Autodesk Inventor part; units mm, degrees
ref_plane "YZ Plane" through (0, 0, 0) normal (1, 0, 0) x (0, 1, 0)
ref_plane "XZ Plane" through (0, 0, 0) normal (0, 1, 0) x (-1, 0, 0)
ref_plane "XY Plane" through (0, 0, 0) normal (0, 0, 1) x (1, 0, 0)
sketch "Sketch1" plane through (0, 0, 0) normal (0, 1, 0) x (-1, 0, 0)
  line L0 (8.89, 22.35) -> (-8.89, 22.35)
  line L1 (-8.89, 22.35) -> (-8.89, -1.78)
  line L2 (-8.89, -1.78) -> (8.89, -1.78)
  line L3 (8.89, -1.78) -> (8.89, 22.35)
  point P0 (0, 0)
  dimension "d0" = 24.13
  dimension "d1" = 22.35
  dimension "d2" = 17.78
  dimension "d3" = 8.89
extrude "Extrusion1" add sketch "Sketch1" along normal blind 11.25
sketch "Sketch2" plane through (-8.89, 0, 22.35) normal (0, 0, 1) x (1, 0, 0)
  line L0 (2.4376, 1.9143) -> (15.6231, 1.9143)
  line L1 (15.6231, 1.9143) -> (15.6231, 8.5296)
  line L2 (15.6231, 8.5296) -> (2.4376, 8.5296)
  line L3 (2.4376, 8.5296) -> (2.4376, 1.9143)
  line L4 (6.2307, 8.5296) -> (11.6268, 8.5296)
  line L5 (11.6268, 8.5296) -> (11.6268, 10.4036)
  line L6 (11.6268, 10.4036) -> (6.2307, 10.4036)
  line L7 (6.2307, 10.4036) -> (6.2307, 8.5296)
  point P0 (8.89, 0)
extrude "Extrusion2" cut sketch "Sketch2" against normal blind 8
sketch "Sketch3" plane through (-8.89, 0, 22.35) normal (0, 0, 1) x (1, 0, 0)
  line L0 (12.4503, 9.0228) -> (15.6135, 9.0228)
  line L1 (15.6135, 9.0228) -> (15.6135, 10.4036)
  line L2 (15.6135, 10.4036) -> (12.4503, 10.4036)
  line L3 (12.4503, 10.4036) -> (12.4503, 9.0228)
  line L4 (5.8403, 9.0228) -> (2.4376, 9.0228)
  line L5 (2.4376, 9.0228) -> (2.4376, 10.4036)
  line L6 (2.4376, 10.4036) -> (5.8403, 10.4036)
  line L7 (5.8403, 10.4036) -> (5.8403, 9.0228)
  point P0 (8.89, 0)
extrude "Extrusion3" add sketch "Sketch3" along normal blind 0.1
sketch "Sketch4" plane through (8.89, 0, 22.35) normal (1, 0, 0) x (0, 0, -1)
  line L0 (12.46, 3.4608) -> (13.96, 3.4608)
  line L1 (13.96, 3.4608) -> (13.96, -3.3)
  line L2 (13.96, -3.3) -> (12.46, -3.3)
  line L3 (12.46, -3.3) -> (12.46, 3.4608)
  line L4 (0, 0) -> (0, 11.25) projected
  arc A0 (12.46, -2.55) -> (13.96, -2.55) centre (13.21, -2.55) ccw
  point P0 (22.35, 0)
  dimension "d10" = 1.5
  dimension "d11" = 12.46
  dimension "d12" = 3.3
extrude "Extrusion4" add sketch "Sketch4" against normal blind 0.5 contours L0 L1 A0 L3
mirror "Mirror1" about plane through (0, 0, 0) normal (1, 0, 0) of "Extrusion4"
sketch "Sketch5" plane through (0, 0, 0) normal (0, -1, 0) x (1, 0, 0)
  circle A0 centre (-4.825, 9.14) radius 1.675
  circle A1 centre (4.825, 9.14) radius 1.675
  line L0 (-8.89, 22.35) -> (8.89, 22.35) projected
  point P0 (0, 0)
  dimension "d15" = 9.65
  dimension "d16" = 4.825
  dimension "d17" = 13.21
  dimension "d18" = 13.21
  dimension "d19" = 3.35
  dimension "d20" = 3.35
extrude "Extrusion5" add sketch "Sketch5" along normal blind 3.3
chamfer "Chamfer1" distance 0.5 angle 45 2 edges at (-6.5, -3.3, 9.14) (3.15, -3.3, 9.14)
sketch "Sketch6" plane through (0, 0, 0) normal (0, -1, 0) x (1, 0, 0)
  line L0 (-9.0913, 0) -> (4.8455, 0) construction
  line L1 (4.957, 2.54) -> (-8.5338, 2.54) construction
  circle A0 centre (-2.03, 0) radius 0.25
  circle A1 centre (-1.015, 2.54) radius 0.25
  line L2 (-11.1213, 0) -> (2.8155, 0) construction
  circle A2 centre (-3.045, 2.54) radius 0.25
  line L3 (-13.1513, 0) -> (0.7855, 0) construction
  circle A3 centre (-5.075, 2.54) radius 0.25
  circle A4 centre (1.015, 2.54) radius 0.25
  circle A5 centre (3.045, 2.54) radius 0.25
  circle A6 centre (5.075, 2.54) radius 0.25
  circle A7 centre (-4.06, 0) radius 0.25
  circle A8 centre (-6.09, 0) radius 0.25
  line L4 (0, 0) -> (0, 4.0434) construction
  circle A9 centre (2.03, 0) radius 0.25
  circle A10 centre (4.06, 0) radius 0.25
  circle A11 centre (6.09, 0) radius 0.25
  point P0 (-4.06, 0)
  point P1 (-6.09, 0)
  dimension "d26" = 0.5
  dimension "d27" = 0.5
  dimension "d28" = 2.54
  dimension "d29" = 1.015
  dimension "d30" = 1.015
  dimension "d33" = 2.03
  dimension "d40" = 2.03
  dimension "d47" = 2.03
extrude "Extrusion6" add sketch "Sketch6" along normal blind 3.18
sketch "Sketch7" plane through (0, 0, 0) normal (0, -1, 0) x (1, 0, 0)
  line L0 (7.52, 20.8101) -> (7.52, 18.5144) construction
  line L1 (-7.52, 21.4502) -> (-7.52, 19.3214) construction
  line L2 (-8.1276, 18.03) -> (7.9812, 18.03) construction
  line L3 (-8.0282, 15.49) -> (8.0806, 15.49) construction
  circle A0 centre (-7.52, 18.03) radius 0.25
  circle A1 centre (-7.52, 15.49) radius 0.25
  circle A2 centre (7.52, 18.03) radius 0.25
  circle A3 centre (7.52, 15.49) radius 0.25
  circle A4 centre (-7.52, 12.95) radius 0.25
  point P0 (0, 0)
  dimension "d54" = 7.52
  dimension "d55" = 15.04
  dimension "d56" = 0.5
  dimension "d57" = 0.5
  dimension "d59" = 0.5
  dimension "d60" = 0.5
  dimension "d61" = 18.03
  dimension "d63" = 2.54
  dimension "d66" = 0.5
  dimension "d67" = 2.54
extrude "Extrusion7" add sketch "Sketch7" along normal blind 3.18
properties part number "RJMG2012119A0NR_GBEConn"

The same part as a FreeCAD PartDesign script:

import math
import FreeCAD as App
import Part
import Sketcher


def edges_at(feature, points):
    """Names of the edges that pass closest to the given points."""
    edges = feature.Shape.Edges
    near = lambda p: min(range(len(edges)), key=lambda i: edges[i].distToShape(Part.Vertex(*p))[0])
    return sorted({f"Edge{near(p) + 1}" for p in points})


def add_polygon(sketch, points):
    """Adds a closed chain of lines whose ends are joined by coincident constraints."""
    first, n = sketch.GeometryCount, len(points)
    for a, b in zip(points, points[1:] + points[:1]):
        sketch.addGeometry(Part.LineSegment(App.Vector(*a, 0), App.Vector(*b, 0)), False)
    for i in range(n):
        sketch.addConstraint(Sketcher.Constraint("Coincident", first + i, 2, first + (i + 1) % n, 1))

doc = App.newDocument("Part")
body = doc.addObject("PartDesign::Body", "Body")

sketch1 = body.newObject("Sketcher::SketchObject", "Sketch")
sketch1.AttachmentSupport = (doc.getObject("XZ_Plane"), [""])
sketch1.MapMode = "FlatFace"
add_polygon(sketch1, [(-9, -2), (-9, 22), (9, 22), (9, -2)])
sketch1.addConstraint([
    Sketcher.Constraint("Vertical", 0),
    Sketcher.Constraint("Horizontal", 1),
    Sketcher.Constraint("Vertical", 2),
    Sketcher.Constraint("Horizontal", 3),
    Sketcher.Constraint("DistanceX", 1, 1, 1, 2, 17.78),
    Sketcher.Constraint("DistanceY", 0, 1, 0, 2, 24.13),
    Sketcher.Constraint("DistanceX", 0, 2, -1, 1, 8.89),
    Sketcher.Constraint("DistanceY", -1, 1, 0, 2, 22.35),
])
pad1 = body.newObject("PartDesign::Pad", "Pad")
pad1.Profile = sketch1
pad1.Length = 11.25
pad1.Reversed = True

sketch2 = body.newObject("Sketcher::SketchObject", "Sketch001")
sketch2.AttachmentSupport = (doc.getObject("XY_Plane"), [""])
sketch2.MapMode = "FlatFace"
sketch2.AttachmentOffset = App.Placement(App.Vector(0, 0, 22.35), App.Rotation())
add_polygon(sketch2, [(-6.5, 8.5), (-6.5, 1.9), (6.7, 1.9), (6.7, 8.5), (2.7, 8.5), (2.7, 10.4), (-2.7, 10.4), (-2.7, 8.5)])
sketch2.addConstraint([
    Sketcher.Constraint("Vertical", 0),
    Sketcher.Constraint("Horizontal", 1),
    Sketcher.Constraint("Vertical", 2),
    Sketcher.Constraint("Horizontal", 3),
    Sketcher.Constraint("Vertical", 4),
    Sketcher.Constraint("Horizontal", 5),
    Sketcher.Constraint("Vertical", 6),
    Sketcher.Constraint("Horizontal", 7),
    Sketcher.Constraint("Horizontal", 3, 2, 6, 2),
    Sketcher.Constraint("DistanceX", 5, 2, 5, 1, 5.396),
    Sketcher.Constraint("DistanceX", 7, 2, 7, 1, 3.793),
    Sketcher.Constraint("DistanceY", 4, 1, 4, 2, 1.874),
    Sketcher.Constraint("DistanceX", 1, 1, 1, 2, 13.1855),
    Sketcher.Constraint("DistanceY", 0, 2, 0, 1, 6.6153),
    Sketcher.Constraint("DistanceX", -1, 1, 1, 2, 6.733),
    Sketcher.Constraint("DistanceY", -1, 1, 0, 2, 1.9143),
])
pocket1 = body.newObject("PartDesign::Pocket", "Pocket")
pocket1.Profile = sketch2
pocket1.Length = 8

sketch3 = body.newObject("Sketcher::SketchObject", "Sketch002")
sketch3.AttachmentSupport = (doc.getObject("XY_Plane"), [""])
sketch3.MapMode = "FlatFace"
sketch3.AttachmentOffset = App.Placement(App.Vector(0, 0, 22.35), App.Rotation())
add_polygon(sketch3, [(3.6, 10.4), (3.6, 9), (6.7, 9), (6.7, 10.4)])
add_polygon(sketch3, [(-6.5, 9), (-3, 9), (-3, 10.4), (-6.5, 10.4)])
sketch3.addConstraint([
    Sketcher.Constraint("Vertical", 0),
    Sketcher.Constraint("Horizontal", 1),
    Sketcher.Constraint("Vertical", 2),
    Sketcher.Constraint("Horizontal", 3),
    Sketcher.Constraint("Horizontal", 4),
    Sketcher.Constraint("Vertical", 5),
    Sketcher.Constraint("Horizontal", 6),
    Sketcher.Constraint("Vertical", 7),
    Sketcher.Constraint("Horizontal", 1, 2, 4, 2),
    Sketcher.Constraint("Horizontal", 3, 2, 5, 2),
    Sketcher.Constraint("DistanceX", 4, 2, 0, 2, 6.61),
    Sketcher.Constraint("DistanceX", 1, 1, 1, 2, 3.1632),
    Sketcher.Constraint("DistanceX", 4, 1, 4, 2, 3.4027),
    Sketcher.Constraint("DistanceY", 0, 2, 0, 1, 1.3808),
    Sketcher.Constraint("DistanceX", -1, 1, 0, 2, 3.5603),
    Sketcher.Constraint("DistanceY", -1, 1, 0, 2, 9.0228),
])
pad2 = body.newObject("PartDesign::Pad", "Pad001")
pad2.Profile = sketch3
pad2.Length = 0.1

sketch4 = body.newObject("Sketcher::SketchObject", "Sketch003")
sketch4.AttachmentSupport = (doc.getObject("YZ_Plane"), [""])
sketch4.MapMode = "FlatFace"
sketch4.AttachmentOffset = App.Placement(App.Vector(0, 0, 8.89), App.Rotation())
sketch4.addGeometry([
    Part.LineSegment(App.Vector(3.5, 8.4, 0), App.Vector(3.5, 9.9, 0)),
    Part.LineSegment(App.Vector(3.5, 9.9, 0), App.Vector(-2.5, 9.9, 0)),
    Part.ArcOfCircle(Part.Circle(App.Vector(-2.5, 9.1, 0), App.Vector(0, 0, 1), 0.8), math.radians(90), math.radians(270)),
    Part.LineSegment(App.Vector(-2.5, 8.4, 0), App.Vector(3.5, 8.4, 0)),
], False)
sketch4.addConstraint([
    Sketcher.Constraint("Coincident", 0, 2, 1, 1),
    Sketcher.Constraint("Tangent", 1, 2, 2, 1),
    Sketcher.Constraint("Tangent", 2, 2, 3, 1),
    Sketcher.Constraint("Coincident", 3, 2, 0, 1),
    Sketcher.Constraint("Vertical", 0),
    Sketcher.Constraint("Horizontal", 1),
    Sketcher.Constraint("Horizontal", 3),
    Sketcher.Constraint("Radius", 2, 0.75),
    Sketcher.Constraint("DistanceX", 2, 3, -1, 1, 2.55),
    Sketcher.Constraint("DistanceY", -1, 1, 2, 3, 9.14),
    Sketcher.Constraint("DistanceX", 1, 2, 1, 1, 6.0108),
])
pad3 = body.newObject("PartDesign::Pad", "Pad002")
pad3.Profile = sketch4
pad3.Length = 0.5
pad3.Reversed = True
doc.recompute()

mirrored = body.newObject("PartDesign::Mirrored", "Mirrored")
mirrored.Originals = [pad3]
mirrored.MirrorPlane = (doc.getObject("YZ_Plane"), [""])
body.Tip = mirrored

sketch5 = body.newObject("Sketcher::SketchObject", "Sketch004")
sketch5.AttachmentSupport = (doc.getObject("XZ_Plane"), [""])
sketch5.MapMode = "FlatFace"
sketch5.addGeometry([
    Part.Circle(App.Vector(-4.8, 9.1, 0), App.Vector(0, 0, 1), 1.7),
    Part.Circle(App.Vector(4.8, 9.1, 0), App.Vector(0, 0, 1), 1.7),
], False)
sketch5.addConstraint([
    Sketcher.Constraint("Equal", 0, 1),
    Sketcher.Constraint("Symmetric", 0, 3, 1, 3, -2),
    Sketcher.Constraint("Diameter", 0, 3.35),
    Sketcher.Constraint("DistanceX", 0, 3, 1, 3, 9.65),
    Sketcher.Constraint("DistanceY", -1, 1, 0, 3, 9.14),
])
pad4 = body.newObject("PartDesign::Pad", "Pad003")
pad4.Profile = sketch5
pad4.Length = 3.3
doc.recompute()

chamfer = body.newObject("PartDesign::Chamfer", "Chamfer")
chamfer.Base = (pad4, edges_at(pad4, [(-6.5, -3.3, 9.14), (3.15, -3.3, 9.14)]))
chamfer.Size = 0.5

sketch6 = body.newObject("Sketcher::SketchObject", "Sketch005")
sketch6.AttachmentSupport = (doc.getObject("XZ_Plane"), [""])
sketch6.MapMode = "FlatFace"
sketch6.addGeometry([
    Part.Circle(App.Vector(-2.03, 0, 0), App.Vector(0, 0, 1), 0.25),
    Part.Circle(App.Vector(-1.01, 2.54, 0), App.Vector(0, 0, 1), 0.25),
    Part.Circle(App.Vector(-3.04, 2.54, 0), App.Vector(0, 0, 1), 0.25),
    Part.Circle(App.Vector(-5.08, 2.54, 0), App.Vector(0, 0, 1), 0.25),
    Part.Circle(App.Vector(1.01, 2.54, 0), App.Vector(0, 0, 1), 0.25),
    Part.Circle(App.Vector(3.04, 2.54, 0), App.Vector(0, 0, 1), 0.25),
    Part.Circle(App.Vector(5.08, 2.54, 0), App.Vector(0, 0, 1), 0.25),
    Part.Circle(App.Vector(-4.06, 0, 0), App.Vector(0, 0, 1), 0.25),
    Part.Circle(App.Vector(-6.09, 0, 0), App.Vector(0, 0, 1), 0.25),
    Part.Circle(App.Vector(2.03, 0, 0), App.Vector(0, 0, 1), 0.25),
    Part.Circle(App.Vector(4.06, 0, 0), App.Vector(0, 0, 1), 0.25),
    Part.Circle(App.Vector(6.09, 0, 0), App.Vector(0, 0, 1), 0.25),
], False)
sketch6.addConstraint([
    Sketcher.Constraint("Equal", 0, 1),
    Sketcher.Constraint("Equal", 1, 2),
    Sketcher.Constraint("Equal", 2, 3),
    Sketcher.Constraint("Equal", 3, 4),
    Sketcher.Constraint("Equal", 4, 5),
    Sketcher.Constraint("Equal", 5, 6),
    Sketcher.Constraint("Equal", 6, 7),
    Sketcher.Constraint("Equal", 7, 8),
    Sketcher.Constraint("Equal", 8, 9),
    Sketcher.Constraint("Equal", 9, 10),
    Sketcher.Constraint("Equal", 10, 11),
    Sketcher.Constraint("Symmetric", 0, 3, 9, 3, -1, 1),
    Sketcher.Constraint("Symmetric", 7, 3, 10, 3, -1, 1),
    Sketcher.Constraint("Symmetric", 8, 3, 11, 3, -1, 1),
    Sketcher.Constraint("Symmetric", 1, 3, 4, 3, -2),
    Sketcher.Constraint("Symmetric", 2, 3, 5, 3, -2),
    Sketcher.Constraint("Symmetric", 3, 3, 6, 3, -2),
    Sketcher.Constraint("PointOnObject", 0, 3, -1),
    Sketcher.Constraint("PointOnObject", 7, 3, -1),
    Sketcher.Constraint("PointOnObject", 8, 3, -1),
    Sketcher.Constraint("Horizontal", 1, 3, 2, 3),
    Sketcher.Constraint("Horizontal", 2, 3, 3, 3),
    Sketcher.Constraint("Diameter", 0, 0.5),
    Sketcher.Constraint("DistanceX", 0, 3, -1, 1, 2.03),
    Sketcher.Constraint("DistanceY", -1, 1, 1, 3, 2.54),
    Sketcher.Constraint("DistanceX", 2, 3, 1, 3, 2.03),
    Sketcher.Constraint("DistanceX", 3, 3, 2, 3, 2.03),
    Sketcher.Constraint("DistanceX", 1, 3, 4, 3, 2.03),
    Sketcher.Constraint("DistanceX", 7, 3, 0, 3, 2.03),
    Sketcher.Constraint("DistanceX", 8, 3, 7, 3, 2.03),
])
pad5 = body.newObject("PartDesign::Pad", "Pad004")
pad5.Profile = sketch6
pad5.Length = 3.18

sketch7 = body.newObject("Sketcher::SketchObject", "Sketch006")
sketch7.AttachmentSupport = (doc.getObject("XZ_Plane"), [""])
sketch7.MapMode = "FlatFace"
sketch7.addGeometry([
    Part.Circle(App.Vector(-7.52, 18.03, 0), App.Vector(0, 0, 1), 0.25),
    Part.Circle(App.Vector(-7.52, 15.49, 0), App.Vector(0, 0, 1), 0.25),
    Part.Circle(App.Vector(7.52, 18.03, 0), App.Vector(0, 0, 1), 0.25),
    Part.Circle(App.Vector(7.52, 15.49, 0), App.Vector(0, 0, 1), 0.25),
    Part.Circle(App.Vector(-7.52, 12.95, 0), App.Vector(0, 0, 1), 0.25),
], False)
sketch7.addConstraint([
    Sketcher.Constraint("Equal", 0, 1),
    Sketcher.Constraint("Equal", 1, 2),
    Sketcher.Constraint("Equal", 2, 3),
    Sketcher.Constraint("Equal", 3, 4),
    Sketcher.Constraint("Symmetric", 0, 3, 2, 3, -2),
    Sketcher.Constraint("Symmetric", 1, 3, 3, 3, -2),
    Sketcher.Constraint("Vertical", 0, 3, 1, 3),
    Sketcher.Constraint("Vertical", 1, 3, 4, 3),
    Sketcher.Constraint("Diameter", 0, 0.5),
    Sketcher.Constraint("DistanceX", 0, 3, -1, 1, 7.52),
    Sketcher.Constraint("DistanceY", -1, 1, 0, 3, 18.03),
    Sketcher.Constraint("DistanceY", 1, 3, 0, 3, 2.54),
    Sketcher.Constraint("DistanceY", 4, 3, 1, 3, 2.54),
])
pad6 = body.newObject("PartDesign::Pad", "Pad005")
pad6.Profile = sketch7
pad6.Length = 3.18

doc.recompute()
